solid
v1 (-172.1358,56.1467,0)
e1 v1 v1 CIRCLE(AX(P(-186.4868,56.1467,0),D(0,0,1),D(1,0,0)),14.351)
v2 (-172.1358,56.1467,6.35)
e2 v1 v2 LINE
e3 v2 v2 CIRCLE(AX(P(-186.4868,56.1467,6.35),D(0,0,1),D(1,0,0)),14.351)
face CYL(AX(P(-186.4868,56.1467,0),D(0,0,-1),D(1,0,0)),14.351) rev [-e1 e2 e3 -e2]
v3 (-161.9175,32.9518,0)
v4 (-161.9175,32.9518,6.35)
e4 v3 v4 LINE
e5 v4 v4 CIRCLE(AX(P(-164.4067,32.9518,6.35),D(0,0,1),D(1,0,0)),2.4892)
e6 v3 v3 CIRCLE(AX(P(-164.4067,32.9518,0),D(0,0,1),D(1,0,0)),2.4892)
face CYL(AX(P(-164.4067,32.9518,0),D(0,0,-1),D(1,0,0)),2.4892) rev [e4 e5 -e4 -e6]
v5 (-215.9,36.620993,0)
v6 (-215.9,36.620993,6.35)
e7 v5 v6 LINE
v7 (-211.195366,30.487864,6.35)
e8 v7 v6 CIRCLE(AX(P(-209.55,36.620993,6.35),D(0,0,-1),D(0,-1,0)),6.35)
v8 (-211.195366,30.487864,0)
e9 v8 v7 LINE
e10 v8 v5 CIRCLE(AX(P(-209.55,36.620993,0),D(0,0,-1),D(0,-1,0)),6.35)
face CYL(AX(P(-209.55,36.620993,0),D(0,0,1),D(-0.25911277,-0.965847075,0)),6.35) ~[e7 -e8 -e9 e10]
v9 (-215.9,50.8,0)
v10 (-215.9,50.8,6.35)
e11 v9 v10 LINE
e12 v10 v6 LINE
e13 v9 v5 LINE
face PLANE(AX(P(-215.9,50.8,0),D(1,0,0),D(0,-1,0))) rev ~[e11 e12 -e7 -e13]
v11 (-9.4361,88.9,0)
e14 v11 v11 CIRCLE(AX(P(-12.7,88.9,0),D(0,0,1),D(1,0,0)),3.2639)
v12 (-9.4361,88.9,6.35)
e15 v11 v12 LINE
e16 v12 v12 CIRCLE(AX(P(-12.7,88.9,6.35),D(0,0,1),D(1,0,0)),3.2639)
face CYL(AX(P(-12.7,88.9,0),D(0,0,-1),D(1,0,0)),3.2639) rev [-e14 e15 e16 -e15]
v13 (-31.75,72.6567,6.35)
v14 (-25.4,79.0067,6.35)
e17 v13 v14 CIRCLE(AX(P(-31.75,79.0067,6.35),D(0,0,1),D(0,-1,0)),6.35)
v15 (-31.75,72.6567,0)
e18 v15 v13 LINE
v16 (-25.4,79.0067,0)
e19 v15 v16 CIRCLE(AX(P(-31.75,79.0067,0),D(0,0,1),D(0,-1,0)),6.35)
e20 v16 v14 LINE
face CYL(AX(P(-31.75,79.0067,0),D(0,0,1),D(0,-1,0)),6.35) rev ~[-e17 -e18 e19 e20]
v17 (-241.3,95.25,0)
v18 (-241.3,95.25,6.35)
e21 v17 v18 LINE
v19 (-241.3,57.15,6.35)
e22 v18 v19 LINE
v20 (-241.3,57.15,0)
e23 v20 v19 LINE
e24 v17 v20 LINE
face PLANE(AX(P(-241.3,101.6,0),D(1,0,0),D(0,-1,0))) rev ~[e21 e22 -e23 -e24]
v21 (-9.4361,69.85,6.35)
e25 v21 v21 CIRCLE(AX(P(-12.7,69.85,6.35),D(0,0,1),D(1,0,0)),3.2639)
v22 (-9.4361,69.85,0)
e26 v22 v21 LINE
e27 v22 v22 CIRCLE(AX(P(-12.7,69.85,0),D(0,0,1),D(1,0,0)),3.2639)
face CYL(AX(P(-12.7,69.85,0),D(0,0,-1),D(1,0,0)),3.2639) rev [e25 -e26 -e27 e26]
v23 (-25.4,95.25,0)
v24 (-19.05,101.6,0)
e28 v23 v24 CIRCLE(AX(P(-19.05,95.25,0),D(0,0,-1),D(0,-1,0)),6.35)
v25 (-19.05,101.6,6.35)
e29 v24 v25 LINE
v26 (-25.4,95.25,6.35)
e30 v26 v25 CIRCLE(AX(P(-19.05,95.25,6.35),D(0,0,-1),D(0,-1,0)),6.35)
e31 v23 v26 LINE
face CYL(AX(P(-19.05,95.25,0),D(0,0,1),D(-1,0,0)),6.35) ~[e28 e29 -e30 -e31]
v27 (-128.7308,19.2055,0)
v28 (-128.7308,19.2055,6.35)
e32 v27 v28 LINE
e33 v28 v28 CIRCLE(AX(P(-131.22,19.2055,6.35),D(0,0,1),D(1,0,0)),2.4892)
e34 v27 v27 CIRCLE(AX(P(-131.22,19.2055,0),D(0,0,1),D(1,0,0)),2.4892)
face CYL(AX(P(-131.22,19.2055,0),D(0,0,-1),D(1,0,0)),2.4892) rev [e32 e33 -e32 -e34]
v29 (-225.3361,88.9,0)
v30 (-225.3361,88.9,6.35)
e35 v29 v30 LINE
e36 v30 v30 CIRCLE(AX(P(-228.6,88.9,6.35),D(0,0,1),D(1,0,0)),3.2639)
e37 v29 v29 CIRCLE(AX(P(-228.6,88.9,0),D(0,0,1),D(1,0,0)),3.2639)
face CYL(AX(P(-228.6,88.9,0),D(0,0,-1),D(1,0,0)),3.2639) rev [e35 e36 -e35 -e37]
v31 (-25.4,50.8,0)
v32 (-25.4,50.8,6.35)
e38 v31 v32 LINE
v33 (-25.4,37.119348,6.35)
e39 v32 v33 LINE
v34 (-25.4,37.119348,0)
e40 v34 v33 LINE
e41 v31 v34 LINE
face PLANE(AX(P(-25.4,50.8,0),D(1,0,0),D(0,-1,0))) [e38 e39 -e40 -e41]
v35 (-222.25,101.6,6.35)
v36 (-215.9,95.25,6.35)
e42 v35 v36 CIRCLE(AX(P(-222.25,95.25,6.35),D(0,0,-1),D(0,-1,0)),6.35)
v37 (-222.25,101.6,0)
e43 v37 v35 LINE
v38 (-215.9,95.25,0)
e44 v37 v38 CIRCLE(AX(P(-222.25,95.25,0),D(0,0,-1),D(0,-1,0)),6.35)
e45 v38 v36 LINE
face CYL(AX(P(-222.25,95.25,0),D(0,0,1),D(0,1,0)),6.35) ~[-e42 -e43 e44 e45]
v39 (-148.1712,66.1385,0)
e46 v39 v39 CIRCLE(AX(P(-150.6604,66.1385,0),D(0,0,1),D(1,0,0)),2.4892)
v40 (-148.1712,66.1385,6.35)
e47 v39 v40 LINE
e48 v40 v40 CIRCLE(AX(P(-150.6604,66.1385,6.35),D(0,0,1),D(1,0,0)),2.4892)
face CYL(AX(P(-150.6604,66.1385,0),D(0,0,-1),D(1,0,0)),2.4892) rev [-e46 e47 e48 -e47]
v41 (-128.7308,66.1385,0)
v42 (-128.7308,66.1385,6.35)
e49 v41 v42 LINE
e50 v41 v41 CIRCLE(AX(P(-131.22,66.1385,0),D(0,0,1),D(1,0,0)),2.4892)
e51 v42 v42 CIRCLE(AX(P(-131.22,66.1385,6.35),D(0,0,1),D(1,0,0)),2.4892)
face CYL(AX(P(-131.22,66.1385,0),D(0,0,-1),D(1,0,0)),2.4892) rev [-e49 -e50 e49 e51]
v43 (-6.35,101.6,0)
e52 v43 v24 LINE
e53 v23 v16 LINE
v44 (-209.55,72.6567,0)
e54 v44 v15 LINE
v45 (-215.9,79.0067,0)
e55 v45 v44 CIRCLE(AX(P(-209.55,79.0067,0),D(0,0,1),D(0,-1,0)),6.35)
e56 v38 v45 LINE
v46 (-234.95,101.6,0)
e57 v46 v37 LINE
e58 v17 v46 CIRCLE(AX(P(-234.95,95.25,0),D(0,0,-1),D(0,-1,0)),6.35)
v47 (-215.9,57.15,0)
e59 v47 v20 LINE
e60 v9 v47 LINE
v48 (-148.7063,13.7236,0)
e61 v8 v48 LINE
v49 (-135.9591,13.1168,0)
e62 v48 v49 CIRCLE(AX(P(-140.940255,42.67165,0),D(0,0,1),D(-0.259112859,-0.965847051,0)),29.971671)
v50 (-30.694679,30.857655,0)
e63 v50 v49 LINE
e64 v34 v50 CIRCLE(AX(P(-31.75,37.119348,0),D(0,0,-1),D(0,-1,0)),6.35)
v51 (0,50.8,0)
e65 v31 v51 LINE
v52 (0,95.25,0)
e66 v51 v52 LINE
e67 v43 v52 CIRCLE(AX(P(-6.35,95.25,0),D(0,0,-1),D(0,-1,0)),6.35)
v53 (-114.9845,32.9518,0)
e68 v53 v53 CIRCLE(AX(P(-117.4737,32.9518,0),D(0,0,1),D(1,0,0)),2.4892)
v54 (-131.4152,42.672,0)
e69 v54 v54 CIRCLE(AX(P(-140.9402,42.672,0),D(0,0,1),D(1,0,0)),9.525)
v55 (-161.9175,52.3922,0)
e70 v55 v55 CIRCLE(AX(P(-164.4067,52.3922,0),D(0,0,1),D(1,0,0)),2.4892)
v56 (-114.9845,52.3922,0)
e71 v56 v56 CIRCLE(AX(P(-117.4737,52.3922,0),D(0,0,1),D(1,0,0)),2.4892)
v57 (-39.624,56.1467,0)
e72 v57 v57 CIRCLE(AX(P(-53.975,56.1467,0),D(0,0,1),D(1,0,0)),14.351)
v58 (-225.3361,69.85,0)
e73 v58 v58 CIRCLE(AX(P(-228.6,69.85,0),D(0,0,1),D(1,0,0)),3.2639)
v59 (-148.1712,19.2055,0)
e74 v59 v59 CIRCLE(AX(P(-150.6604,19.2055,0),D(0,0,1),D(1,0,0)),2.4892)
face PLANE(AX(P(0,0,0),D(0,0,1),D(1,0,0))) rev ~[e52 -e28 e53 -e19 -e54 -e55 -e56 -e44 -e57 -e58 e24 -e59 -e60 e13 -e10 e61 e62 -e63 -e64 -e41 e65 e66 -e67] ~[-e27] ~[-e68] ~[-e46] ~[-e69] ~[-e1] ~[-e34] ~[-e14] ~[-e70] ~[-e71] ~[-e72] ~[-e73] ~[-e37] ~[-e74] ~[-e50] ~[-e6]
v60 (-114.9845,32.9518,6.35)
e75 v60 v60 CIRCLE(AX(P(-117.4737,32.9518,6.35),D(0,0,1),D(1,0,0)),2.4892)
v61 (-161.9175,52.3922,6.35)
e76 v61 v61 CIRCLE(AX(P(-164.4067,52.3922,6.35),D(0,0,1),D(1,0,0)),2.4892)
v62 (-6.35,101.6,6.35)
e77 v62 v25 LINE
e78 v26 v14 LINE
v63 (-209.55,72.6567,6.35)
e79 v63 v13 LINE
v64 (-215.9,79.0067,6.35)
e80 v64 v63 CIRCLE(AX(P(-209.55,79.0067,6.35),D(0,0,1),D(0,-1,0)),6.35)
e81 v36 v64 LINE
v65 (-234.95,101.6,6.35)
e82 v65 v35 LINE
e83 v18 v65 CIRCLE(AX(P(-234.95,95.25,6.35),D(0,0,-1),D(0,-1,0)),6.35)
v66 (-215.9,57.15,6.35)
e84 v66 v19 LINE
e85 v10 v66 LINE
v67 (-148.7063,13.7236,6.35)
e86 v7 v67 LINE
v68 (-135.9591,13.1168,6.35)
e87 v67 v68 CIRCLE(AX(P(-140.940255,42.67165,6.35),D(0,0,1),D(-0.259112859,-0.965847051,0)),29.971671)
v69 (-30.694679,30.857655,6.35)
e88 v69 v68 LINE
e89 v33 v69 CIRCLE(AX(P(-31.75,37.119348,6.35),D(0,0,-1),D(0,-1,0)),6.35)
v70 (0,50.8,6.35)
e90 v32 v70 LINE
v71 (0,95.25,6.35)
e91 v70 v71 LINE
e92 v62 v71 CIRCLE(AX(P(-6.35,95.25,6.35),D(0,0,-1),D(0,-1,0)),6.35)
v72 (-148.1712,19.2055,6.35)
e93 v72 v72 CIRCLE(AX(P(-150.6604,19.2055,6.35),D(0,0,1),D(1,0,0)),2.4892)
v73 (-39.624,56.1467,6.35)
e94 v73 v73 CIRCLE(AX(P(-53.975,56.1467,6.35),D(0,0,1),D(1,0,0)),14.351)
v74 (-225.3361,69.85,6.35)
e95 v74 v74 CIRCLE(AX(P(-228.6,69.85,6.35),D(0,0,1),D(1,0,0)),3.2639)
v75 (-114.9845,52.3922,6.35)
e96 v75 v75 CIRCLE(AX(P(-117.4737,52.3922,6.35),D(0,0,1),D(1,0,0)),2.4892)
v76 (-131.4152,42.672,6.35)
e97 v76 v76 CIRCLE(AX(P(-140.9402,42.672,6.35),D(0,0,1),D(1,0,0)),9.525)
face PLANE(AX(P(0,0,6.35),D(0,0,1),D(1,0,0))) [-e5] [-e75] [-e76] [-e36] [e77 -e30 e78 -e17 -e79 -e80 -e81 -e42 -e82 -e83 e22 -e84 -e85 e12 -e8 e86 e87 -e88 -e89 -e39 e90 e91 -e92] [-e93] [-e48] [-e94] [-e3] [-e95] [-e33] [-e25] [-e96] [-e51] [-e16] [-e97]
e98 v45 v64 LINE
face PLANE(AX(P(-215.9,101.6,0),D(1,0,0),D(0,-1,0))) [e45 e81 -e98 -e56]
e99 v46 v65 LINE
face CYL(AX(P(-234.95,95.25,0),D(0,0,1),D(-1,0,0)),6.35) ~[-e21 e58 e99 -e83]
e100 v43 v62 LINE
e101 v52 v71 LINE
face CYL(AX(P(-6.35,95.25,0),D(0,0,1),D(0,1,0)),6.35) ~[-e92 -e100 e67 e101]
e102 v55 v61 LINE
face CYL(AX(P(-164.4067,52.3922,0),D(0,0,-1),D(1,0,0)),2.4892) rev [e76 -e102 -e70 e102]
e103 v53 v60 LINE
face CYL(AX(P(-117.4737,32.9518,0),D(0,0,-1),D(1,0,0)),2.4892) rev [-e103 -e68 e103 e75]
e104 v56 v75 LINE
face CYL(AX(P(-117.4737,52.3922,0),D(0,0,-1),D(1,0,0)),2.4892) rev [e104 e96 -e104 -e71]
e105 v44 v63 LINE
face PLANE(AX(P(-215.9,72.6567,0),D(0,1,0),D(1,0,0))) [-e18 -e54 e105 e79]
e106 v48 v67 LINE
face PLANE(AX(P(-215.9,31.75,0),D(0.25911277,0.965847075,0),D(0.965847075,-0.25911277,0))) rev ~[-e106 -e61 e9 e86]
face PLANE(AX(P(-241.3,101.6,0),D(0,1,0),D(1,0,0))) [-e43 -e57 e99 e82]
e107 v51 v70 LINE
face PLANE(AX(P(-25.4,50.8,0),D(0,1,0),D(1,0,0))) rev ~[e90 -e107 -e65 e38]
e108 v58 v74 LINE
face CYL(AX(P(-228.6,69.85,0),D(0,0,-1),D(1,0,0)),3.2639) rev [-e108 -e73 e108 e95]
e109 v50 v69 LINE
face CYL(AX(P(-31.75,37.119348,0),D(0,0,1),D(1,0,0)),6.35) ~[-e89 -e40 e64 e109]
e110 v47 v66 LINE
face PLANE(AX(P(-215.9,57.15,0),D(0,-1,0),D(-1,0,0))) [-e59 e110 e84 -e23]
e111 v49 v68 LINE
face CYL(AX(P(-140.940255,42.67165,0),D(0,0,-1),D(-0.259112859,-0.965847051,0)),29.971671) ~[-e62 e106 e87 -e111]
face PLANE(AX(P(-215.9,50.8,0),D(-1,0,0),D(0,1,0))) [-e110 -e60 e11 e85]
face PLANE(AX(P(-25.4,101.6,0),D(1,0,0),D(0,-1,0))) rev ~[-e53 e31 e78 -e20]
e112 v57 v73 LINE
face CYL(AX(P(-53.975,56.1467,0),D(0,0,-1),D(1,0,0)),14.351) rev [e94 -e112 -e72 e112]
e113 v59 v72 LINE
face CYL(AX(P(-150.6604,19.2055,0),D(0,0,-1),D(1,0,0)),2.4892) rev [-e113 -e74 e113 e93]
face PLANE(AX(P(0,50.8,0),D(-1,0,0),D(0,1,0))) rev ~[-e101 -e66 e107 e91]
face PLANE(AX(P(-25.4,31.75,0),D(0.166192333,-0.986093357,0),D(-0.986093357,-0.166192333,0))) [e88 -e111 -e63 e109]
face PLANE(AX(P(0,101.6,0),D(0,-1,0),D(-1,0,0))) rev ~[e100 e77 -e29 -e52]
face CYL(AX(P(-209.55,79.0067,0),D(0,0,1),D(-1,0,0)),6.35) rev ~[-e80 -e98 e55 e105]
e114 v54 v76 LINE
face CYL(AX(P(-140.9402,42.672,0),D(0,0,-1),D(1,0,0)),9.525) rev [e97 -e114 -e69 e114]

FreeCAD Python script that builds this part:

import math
import FreeCAD as App
import Part
import Sketcher
from FreeCAD import Vector
Q = App.Units.Quantity


def edges_at(feature, points):
    """Names of the edges that pass closest to the given points."""
    edges = feature.Shape.Edges
    near = lambda p: min(range(len(edges)), key=lambda i: edges[i].distToShape(Part.Vertex(*p))[0])
    return sorted({f"Edge{near(p) + 1}" for p in points})

doc = App.newDocument("Part")
params = doc.addObject("Spreadsheet::Sheet", "Params")
for row, (alias, value) in enumerate([
    ("sketch1_diameter", "1.13 in"),
    ("sketch1_diameter2", "0.75 in"),
    ("sketch1_width", "1 in"),
    ("sketch1_height", "2 in"),
    ("sketch1_radius", "1.18 in"),
    ("pad1_length", "0.25 in"),
    ("fillet_radius", "0.25 in"),
], start=1):
    params.set(f"A{row}", alias)
    params.set(f"B{row}", "=" + value)
    params.setAlias(f"B{row}", alias)

body = doc.addObject("PartDesign::Body", "Body")

# Sketch on XY plane
sketch1 = doc.addObject("Sketcher::SketchObject", "Sketch")
body.addObject(sketch1)
sketch1.AttachmentSupport = (doc.XY_Plane, [""])
sketch1.MapMode = "FlatFace"
sketch1.addGeometry([
    Part.LineSegment(Vector(-25.4, 31.75, 0), Vector(-25.4, 50.8, 0)),  # 0
    Part.LineSegment(Vector(-25.4, 50.8, 0), Vector(0, 50.8, 0)),  # 1
    Part.LineSegment(Vector(0, 50.8, 0), Vector(0, 101.6, 0)),  # 2
    Part.LineSegment(Vector(0, 101.6, 0), Vector(-25.4, 101.6, 0)),  # 3
    Part.LineSegment(Vector(-25.4, 101.6, 0), Vector(-25.4, 72.6567, 0)),  # 4
    Part.LineSegment(Vector(-25.4, 72.6567, 0), Vector(-215.9, 72.6567, 0)),  # 5
    Part.LineSegment(Vector(-215.9, 72.6567, 0), Vector(-215.9, 101.6, 0)),  # 6
    Part.LineSegment(Vector(-215.9, 101.6, 0), Vector(-241.3, 101.6, 0)),  # 7
    Part.LineSegment(Vector(-241.3, 101.6, 0), Vector(-241.3, 57.15, 0)),  # 8
    Part.LineSegment(Vector(-241.3, 57.15, 0), Vector(-215.9, 57.15, 0)),  # 9
    Part.LineSegment(Vector(-215.9, 57.15, 0), Vector(-215.9, 31.75, 0)),  # 10
    Part.LineSegment(Vector(-215.9, 31.75, 0), Vector(-148.7063, 13.7236, 0)),  # 11
    Part.ArcOfCircle(Part.Circle(Vector(-140.9402, 42.672, 0), Vector(0, 0, 1), 29.972), math.radians(-105.017356), math.radians(-80.433528)),  # 12
    Part.LineSegment(Vector(-135.9591, 13.1168, 0), Vector(-25.4, 31.75, 0)),  # 13
    Part.Circle(Vector(-150.6604, 19.2055, 0), Vector(0, 0, 1), 2.4892),  # 14
    Part.Circle(Vector(-131.22, 19.2055, 0), Vector(0, 0, 1), 2.4892),  # 15
    Part.Circle(Vector(-164.4067, 32.9518, 0), Vector(0, 0, 1), 2.4892),  # 16
    Part.Circle(Vector(-186.4868, 56.1467, 0), Vector(0, 0, 1), 14.351),  # 17
    Part.Circle(Vector(-140.9402, 42.672, 0), Vector(0, 0, 1), 9.525),  # 18
    Part.Circle(Vector(-164.4067, 52.3922, 0), Vector(0, 0, 1), 2.4892),  # 19
    Part.Circle(Vector(-117.4737, 32.9518, 0), Vector(0, 0, 1), 2.4892),  # 20
    Part.Circle(Vector(-117.4737, 52.3922, 0), Vector(0, 0, 1), 2.4892),  # 21
    Part.Circle(Vector(-53.975, 56.1467, 0), Vector(0, 0, 1), 14.351),  # 22
    Part.Circle(Vector(-228.6, 69.85, 0), Vector(0, 0, 1), 3.2639),  # 23
    Part.Circle(Vector(-150.6604, 66.1385, 0), Vector(0, 0, 1), 2.4892),  # 24
    Part.Circle(Vector(-131.22, 66.1385, 0), Vector(0, 0, 1), 2.4892),  # 25
    Part.Circle(Vector(-228.6, 88.9, 0), Vector(0, 0, 1), 3.2639),  # 26
    Part.Circle(Vector(-12.7, 69.85, 0), Vector(0, 0, 1), 3.2639),  # 27
    Part.Circle(Vector(-12.7, 88.9, 0), Vector(0, 0, 1), 3.2639),  # 28
], False)
sketch1.addConstraint([
    Sketcher.Constraint("Coincident", 0, 2, 1, 1),
    Sketcher.Constraint("Coincident", 1, 2, 2, 1),
    Sketcher.Constraint("Coincident", 2, 2, 3, 1),
    Sketcher.Constraint("Coincident", 3, 2, 4, 1),
    Sketcher.Constraint("Coincident", 4, 2, 5, 1),
    Sketcher.Constraint("Coincident", 5, 2, 6, 1),
    Sketcher.Constraint("Coincident", 6, 2, 7, 1),
    Sketcher.Constraint("Coincident", 7, 2, 8, 1),
    Sketcher.Constraint("Coincident", 8, 2, 9, 1),
    Sketcher.Constraint("Coincident", 9, 2, 10, 1),
    Sketcher.Constraint("Coincident", 10, 2, 11, 1),
    Sketcher.Constraint("Tangent", 11, 2, 12, 1),
    Sketcher.Constraint("Tangent", 12, 2, 13, 1),
    Sketcher.Constraint("Coincident", 13, 2, 0, 1),
    Sketcher.Constraint("Vertical", 0),
    Sketcher.Constraint("Horizontal", 1),
    Sketcher.Constraint("Vertical", 2),
    Sketcher.Constraint("Horizontal", 3),
    Sketcher.Constraint("Vertical", 4),
    Sketcher.Constraint("Horizontal", 5),
    Sketcher.Constraint("Vertical", 6),
    Sketcher.Constraint("Horizontal", 7),
    Sketcher.Constraint("Vertical", 8),
    Sketcher.Constraint("Horizontal", 9),
    Sketcher.Constraint("Vertical", 10),
    Sketcher.Constraint("Coincident", 18, 3, 12, 3),
    Sketcher.Constraint("Equal", 14, 15),
    Sketcher.Constraint("Equal", 15, 16),
    Sketcher.Constraint("Equal", 16, 19),
    Sketcher.Constraint("Equal", 19, 20),
    Sketcher.Constraint("Equal", 20, 21),
    Sketcher.Constraint("Equal", 17, 22),
    Sketcher.Constraint("Equal", 21, 24),
    Sketcher.Constraint("Equal", 24, 25),
    Sketcher.Constraint("Equal", 23, 26),
    Sketcher.Constraint("Equal", 26, 27),
    Sketcher.Constraint("Equal", 27, 28),
    Sketcher.Constraint("PointOnObject", 1, 2, -2),
    Sketcher.Constraint("Horizontal", 14, 3, 15, 3),
    Sketcher.Constraint("Horizontal", 16, 3, 20, 3),
    Sketcher.Constraint("Horizontal", 19, 3, 21, 3),
    Sketcher.Constraint("Horizontal", 17, 3, 22, 3),
    Sketcher.Constraint("Horizontal", 24, 3, 25, 3),
    Sketcher.Constraint("Horizontal", 23, 3, 27, 3),
    Sketcher.Constraint("Horizontal", 26, 3, 28, 3),
    Sketcher.Constraint("Horizontal", 3, 2, 6, 2),
    Sketcher.Constraint("Horizontal", 10, 2, 13, 2),
    Sketcher.Constraint("Vertical", 16, 3, 19, 3),
    Sketcher.Constraint("Vertical", 20, 3, 21, 3),
    Sketcher.Constraint("Vertical", 14, 3, 24, 3),
    Sketcher.Constraint("Vertical", 15, 3, 25, 3),
    Sketcher.Constraint("Vertical", 23, 3, 26, 3),
    Sketcher.Constraint("Vertical", 27, 3, 28, 3),
    Sketcher.Constraint("Vertical", 0, 2, 3, 2),
    Sketcher.Constraint("Vertical", 6, 2, 9, 2),
    Sketcher.Constraint("Equal", 3, 7),
    Sketcher.Constraint("Equal", 9, 10),
    Sketcher.Constraint("Diameter", 17, Q("1.13 in")),
    Sketcher.Constraint("Diameter", 18, Q("0.75 in")),
    Sketcher.Constraint("DistanceX", 1, 1, 1, 2, Q("1 in")),
    Sketcher.Constraint("DistanceY", 2, 1, 2, 2, Q("2 in")),
    Sketcher.Constraint("Radius", 12, Q("1.18 in")),
    Sketcher.Constraint("Diameter", 14, Q("0.196 in")),
    Sketcher.Constraint("Diameter", 23, Q("0.257 in")),
    Sketcher.Constraint("DistanceY", -1, 1, 0, 2, Q("2 in")),
    Sketcher.Constraint("DistanceY", 0, 1, 0, 2, Q("0.75 in")),
    Sketcher.Constraint("DistanceX", 27, 3, -1, 1, Q("0.5 in")),
    Sketcher.Constraint("DistanceX", 5, 2, -1, 1, Q("8.5 in")),
    Sketcher.Constraint("DistanceY", 28, 3, 2, 2, Q("0.5 in")),
    Sketcher.Constraint("DistanceX", 23, 3, 5, 2, Q("0.5 in")),
    Sketcher.Constraint("DistanceY", 8, 2, 23, 3, Q("0.5 in")),
    Sketcher.Constraint("DistanceX", 22, 3, 0, 2, Q("1.125 in")),
    Sketcher.Constraint("DistanceY", -1, 1, 12, 3, Q("1.68 in")),
    Sketcher.Constraint("DistanceY", 22, 3, 4, 2, Q("0.65 in")),
    Sketcher.Constraint("DistanceY", 4, 2, 4, 1, Q("1.1395 in")),
    Sketcher.Constraint("DistanceX", 17, 3, -1, 1, Q("7.342 in")),
    Sketcher.Constraint("Distance", 13, Q("4.4141 in")),
    Sketcher.Constraint("DistanceX", 14, 3, -1, 1, Q("5.9315 in")),
    Sketcher.Constraint("DistanceX", 16, 3, -1, 1, Q("6.4727 in")),
    Sketcher.Constraint("DistanceY", 14, 3, 16, 3, Q("0.5412 in")),
    Sketcher.Constraint("DistanceX", 15, 3, 20, 3, Q("0.5412 in")),
    Sketcher.Constraint("DistanceY", 19, 3, 24, 3, Q("0.5412 in")),
    Sketcher.Constraint("DistanceY", 12, 2, 20, 3, Q("0.7809 in")),
    Sketcher.Constraint("DistanceX", 15, 3, -1, 1, 131.22),
    Sketcher.Constraint("DistanceY", -1, 1, 19, 3, 52.3922),
])
sketch1.setExpression("Constraints[57]", "Params.sketch1_diameter")
sketch1.setExpression("Constraints[58]", "Params.sketch1_diameter2")
sketch1.setExpression("Constraints[59]", "Params.sketch1_width")
sketch1.setExpression("Constraints[60]", "Params.sketch1_height")
sketch1.setExpression("Constraints[61]", "Params.sketch1_radius")
pad1 = doc.addObject("PartDesign::Pad", "Pad")
body.addObject(pad1)
pad1.Profile = sketch1
pad1.setExpression("Length", "Params.pad1_length")
doc.recompute()

fillet = doc.addObject("PartDesign::Fillet", "Fillet")
body.addObject(fillet)
fillet.Base = (pad1, edges_at(pad1, [
    (-215.9, 72.657, 3.175),
    (-25.4, 72.657, 3.175),
    (-241.3, 101.6, 3.175),
    (-215.9, 101.6, 3.175),
    (0, 101.6, 3.175),
    (-25.4, 101.6, 3.175),
    (-25.4, 31.75, 3.175),
    (-215.9, 31.75, 3.175),
]))
fillet.setExpression("Radius", "Params.fillet_radius")

doc.recompute()
